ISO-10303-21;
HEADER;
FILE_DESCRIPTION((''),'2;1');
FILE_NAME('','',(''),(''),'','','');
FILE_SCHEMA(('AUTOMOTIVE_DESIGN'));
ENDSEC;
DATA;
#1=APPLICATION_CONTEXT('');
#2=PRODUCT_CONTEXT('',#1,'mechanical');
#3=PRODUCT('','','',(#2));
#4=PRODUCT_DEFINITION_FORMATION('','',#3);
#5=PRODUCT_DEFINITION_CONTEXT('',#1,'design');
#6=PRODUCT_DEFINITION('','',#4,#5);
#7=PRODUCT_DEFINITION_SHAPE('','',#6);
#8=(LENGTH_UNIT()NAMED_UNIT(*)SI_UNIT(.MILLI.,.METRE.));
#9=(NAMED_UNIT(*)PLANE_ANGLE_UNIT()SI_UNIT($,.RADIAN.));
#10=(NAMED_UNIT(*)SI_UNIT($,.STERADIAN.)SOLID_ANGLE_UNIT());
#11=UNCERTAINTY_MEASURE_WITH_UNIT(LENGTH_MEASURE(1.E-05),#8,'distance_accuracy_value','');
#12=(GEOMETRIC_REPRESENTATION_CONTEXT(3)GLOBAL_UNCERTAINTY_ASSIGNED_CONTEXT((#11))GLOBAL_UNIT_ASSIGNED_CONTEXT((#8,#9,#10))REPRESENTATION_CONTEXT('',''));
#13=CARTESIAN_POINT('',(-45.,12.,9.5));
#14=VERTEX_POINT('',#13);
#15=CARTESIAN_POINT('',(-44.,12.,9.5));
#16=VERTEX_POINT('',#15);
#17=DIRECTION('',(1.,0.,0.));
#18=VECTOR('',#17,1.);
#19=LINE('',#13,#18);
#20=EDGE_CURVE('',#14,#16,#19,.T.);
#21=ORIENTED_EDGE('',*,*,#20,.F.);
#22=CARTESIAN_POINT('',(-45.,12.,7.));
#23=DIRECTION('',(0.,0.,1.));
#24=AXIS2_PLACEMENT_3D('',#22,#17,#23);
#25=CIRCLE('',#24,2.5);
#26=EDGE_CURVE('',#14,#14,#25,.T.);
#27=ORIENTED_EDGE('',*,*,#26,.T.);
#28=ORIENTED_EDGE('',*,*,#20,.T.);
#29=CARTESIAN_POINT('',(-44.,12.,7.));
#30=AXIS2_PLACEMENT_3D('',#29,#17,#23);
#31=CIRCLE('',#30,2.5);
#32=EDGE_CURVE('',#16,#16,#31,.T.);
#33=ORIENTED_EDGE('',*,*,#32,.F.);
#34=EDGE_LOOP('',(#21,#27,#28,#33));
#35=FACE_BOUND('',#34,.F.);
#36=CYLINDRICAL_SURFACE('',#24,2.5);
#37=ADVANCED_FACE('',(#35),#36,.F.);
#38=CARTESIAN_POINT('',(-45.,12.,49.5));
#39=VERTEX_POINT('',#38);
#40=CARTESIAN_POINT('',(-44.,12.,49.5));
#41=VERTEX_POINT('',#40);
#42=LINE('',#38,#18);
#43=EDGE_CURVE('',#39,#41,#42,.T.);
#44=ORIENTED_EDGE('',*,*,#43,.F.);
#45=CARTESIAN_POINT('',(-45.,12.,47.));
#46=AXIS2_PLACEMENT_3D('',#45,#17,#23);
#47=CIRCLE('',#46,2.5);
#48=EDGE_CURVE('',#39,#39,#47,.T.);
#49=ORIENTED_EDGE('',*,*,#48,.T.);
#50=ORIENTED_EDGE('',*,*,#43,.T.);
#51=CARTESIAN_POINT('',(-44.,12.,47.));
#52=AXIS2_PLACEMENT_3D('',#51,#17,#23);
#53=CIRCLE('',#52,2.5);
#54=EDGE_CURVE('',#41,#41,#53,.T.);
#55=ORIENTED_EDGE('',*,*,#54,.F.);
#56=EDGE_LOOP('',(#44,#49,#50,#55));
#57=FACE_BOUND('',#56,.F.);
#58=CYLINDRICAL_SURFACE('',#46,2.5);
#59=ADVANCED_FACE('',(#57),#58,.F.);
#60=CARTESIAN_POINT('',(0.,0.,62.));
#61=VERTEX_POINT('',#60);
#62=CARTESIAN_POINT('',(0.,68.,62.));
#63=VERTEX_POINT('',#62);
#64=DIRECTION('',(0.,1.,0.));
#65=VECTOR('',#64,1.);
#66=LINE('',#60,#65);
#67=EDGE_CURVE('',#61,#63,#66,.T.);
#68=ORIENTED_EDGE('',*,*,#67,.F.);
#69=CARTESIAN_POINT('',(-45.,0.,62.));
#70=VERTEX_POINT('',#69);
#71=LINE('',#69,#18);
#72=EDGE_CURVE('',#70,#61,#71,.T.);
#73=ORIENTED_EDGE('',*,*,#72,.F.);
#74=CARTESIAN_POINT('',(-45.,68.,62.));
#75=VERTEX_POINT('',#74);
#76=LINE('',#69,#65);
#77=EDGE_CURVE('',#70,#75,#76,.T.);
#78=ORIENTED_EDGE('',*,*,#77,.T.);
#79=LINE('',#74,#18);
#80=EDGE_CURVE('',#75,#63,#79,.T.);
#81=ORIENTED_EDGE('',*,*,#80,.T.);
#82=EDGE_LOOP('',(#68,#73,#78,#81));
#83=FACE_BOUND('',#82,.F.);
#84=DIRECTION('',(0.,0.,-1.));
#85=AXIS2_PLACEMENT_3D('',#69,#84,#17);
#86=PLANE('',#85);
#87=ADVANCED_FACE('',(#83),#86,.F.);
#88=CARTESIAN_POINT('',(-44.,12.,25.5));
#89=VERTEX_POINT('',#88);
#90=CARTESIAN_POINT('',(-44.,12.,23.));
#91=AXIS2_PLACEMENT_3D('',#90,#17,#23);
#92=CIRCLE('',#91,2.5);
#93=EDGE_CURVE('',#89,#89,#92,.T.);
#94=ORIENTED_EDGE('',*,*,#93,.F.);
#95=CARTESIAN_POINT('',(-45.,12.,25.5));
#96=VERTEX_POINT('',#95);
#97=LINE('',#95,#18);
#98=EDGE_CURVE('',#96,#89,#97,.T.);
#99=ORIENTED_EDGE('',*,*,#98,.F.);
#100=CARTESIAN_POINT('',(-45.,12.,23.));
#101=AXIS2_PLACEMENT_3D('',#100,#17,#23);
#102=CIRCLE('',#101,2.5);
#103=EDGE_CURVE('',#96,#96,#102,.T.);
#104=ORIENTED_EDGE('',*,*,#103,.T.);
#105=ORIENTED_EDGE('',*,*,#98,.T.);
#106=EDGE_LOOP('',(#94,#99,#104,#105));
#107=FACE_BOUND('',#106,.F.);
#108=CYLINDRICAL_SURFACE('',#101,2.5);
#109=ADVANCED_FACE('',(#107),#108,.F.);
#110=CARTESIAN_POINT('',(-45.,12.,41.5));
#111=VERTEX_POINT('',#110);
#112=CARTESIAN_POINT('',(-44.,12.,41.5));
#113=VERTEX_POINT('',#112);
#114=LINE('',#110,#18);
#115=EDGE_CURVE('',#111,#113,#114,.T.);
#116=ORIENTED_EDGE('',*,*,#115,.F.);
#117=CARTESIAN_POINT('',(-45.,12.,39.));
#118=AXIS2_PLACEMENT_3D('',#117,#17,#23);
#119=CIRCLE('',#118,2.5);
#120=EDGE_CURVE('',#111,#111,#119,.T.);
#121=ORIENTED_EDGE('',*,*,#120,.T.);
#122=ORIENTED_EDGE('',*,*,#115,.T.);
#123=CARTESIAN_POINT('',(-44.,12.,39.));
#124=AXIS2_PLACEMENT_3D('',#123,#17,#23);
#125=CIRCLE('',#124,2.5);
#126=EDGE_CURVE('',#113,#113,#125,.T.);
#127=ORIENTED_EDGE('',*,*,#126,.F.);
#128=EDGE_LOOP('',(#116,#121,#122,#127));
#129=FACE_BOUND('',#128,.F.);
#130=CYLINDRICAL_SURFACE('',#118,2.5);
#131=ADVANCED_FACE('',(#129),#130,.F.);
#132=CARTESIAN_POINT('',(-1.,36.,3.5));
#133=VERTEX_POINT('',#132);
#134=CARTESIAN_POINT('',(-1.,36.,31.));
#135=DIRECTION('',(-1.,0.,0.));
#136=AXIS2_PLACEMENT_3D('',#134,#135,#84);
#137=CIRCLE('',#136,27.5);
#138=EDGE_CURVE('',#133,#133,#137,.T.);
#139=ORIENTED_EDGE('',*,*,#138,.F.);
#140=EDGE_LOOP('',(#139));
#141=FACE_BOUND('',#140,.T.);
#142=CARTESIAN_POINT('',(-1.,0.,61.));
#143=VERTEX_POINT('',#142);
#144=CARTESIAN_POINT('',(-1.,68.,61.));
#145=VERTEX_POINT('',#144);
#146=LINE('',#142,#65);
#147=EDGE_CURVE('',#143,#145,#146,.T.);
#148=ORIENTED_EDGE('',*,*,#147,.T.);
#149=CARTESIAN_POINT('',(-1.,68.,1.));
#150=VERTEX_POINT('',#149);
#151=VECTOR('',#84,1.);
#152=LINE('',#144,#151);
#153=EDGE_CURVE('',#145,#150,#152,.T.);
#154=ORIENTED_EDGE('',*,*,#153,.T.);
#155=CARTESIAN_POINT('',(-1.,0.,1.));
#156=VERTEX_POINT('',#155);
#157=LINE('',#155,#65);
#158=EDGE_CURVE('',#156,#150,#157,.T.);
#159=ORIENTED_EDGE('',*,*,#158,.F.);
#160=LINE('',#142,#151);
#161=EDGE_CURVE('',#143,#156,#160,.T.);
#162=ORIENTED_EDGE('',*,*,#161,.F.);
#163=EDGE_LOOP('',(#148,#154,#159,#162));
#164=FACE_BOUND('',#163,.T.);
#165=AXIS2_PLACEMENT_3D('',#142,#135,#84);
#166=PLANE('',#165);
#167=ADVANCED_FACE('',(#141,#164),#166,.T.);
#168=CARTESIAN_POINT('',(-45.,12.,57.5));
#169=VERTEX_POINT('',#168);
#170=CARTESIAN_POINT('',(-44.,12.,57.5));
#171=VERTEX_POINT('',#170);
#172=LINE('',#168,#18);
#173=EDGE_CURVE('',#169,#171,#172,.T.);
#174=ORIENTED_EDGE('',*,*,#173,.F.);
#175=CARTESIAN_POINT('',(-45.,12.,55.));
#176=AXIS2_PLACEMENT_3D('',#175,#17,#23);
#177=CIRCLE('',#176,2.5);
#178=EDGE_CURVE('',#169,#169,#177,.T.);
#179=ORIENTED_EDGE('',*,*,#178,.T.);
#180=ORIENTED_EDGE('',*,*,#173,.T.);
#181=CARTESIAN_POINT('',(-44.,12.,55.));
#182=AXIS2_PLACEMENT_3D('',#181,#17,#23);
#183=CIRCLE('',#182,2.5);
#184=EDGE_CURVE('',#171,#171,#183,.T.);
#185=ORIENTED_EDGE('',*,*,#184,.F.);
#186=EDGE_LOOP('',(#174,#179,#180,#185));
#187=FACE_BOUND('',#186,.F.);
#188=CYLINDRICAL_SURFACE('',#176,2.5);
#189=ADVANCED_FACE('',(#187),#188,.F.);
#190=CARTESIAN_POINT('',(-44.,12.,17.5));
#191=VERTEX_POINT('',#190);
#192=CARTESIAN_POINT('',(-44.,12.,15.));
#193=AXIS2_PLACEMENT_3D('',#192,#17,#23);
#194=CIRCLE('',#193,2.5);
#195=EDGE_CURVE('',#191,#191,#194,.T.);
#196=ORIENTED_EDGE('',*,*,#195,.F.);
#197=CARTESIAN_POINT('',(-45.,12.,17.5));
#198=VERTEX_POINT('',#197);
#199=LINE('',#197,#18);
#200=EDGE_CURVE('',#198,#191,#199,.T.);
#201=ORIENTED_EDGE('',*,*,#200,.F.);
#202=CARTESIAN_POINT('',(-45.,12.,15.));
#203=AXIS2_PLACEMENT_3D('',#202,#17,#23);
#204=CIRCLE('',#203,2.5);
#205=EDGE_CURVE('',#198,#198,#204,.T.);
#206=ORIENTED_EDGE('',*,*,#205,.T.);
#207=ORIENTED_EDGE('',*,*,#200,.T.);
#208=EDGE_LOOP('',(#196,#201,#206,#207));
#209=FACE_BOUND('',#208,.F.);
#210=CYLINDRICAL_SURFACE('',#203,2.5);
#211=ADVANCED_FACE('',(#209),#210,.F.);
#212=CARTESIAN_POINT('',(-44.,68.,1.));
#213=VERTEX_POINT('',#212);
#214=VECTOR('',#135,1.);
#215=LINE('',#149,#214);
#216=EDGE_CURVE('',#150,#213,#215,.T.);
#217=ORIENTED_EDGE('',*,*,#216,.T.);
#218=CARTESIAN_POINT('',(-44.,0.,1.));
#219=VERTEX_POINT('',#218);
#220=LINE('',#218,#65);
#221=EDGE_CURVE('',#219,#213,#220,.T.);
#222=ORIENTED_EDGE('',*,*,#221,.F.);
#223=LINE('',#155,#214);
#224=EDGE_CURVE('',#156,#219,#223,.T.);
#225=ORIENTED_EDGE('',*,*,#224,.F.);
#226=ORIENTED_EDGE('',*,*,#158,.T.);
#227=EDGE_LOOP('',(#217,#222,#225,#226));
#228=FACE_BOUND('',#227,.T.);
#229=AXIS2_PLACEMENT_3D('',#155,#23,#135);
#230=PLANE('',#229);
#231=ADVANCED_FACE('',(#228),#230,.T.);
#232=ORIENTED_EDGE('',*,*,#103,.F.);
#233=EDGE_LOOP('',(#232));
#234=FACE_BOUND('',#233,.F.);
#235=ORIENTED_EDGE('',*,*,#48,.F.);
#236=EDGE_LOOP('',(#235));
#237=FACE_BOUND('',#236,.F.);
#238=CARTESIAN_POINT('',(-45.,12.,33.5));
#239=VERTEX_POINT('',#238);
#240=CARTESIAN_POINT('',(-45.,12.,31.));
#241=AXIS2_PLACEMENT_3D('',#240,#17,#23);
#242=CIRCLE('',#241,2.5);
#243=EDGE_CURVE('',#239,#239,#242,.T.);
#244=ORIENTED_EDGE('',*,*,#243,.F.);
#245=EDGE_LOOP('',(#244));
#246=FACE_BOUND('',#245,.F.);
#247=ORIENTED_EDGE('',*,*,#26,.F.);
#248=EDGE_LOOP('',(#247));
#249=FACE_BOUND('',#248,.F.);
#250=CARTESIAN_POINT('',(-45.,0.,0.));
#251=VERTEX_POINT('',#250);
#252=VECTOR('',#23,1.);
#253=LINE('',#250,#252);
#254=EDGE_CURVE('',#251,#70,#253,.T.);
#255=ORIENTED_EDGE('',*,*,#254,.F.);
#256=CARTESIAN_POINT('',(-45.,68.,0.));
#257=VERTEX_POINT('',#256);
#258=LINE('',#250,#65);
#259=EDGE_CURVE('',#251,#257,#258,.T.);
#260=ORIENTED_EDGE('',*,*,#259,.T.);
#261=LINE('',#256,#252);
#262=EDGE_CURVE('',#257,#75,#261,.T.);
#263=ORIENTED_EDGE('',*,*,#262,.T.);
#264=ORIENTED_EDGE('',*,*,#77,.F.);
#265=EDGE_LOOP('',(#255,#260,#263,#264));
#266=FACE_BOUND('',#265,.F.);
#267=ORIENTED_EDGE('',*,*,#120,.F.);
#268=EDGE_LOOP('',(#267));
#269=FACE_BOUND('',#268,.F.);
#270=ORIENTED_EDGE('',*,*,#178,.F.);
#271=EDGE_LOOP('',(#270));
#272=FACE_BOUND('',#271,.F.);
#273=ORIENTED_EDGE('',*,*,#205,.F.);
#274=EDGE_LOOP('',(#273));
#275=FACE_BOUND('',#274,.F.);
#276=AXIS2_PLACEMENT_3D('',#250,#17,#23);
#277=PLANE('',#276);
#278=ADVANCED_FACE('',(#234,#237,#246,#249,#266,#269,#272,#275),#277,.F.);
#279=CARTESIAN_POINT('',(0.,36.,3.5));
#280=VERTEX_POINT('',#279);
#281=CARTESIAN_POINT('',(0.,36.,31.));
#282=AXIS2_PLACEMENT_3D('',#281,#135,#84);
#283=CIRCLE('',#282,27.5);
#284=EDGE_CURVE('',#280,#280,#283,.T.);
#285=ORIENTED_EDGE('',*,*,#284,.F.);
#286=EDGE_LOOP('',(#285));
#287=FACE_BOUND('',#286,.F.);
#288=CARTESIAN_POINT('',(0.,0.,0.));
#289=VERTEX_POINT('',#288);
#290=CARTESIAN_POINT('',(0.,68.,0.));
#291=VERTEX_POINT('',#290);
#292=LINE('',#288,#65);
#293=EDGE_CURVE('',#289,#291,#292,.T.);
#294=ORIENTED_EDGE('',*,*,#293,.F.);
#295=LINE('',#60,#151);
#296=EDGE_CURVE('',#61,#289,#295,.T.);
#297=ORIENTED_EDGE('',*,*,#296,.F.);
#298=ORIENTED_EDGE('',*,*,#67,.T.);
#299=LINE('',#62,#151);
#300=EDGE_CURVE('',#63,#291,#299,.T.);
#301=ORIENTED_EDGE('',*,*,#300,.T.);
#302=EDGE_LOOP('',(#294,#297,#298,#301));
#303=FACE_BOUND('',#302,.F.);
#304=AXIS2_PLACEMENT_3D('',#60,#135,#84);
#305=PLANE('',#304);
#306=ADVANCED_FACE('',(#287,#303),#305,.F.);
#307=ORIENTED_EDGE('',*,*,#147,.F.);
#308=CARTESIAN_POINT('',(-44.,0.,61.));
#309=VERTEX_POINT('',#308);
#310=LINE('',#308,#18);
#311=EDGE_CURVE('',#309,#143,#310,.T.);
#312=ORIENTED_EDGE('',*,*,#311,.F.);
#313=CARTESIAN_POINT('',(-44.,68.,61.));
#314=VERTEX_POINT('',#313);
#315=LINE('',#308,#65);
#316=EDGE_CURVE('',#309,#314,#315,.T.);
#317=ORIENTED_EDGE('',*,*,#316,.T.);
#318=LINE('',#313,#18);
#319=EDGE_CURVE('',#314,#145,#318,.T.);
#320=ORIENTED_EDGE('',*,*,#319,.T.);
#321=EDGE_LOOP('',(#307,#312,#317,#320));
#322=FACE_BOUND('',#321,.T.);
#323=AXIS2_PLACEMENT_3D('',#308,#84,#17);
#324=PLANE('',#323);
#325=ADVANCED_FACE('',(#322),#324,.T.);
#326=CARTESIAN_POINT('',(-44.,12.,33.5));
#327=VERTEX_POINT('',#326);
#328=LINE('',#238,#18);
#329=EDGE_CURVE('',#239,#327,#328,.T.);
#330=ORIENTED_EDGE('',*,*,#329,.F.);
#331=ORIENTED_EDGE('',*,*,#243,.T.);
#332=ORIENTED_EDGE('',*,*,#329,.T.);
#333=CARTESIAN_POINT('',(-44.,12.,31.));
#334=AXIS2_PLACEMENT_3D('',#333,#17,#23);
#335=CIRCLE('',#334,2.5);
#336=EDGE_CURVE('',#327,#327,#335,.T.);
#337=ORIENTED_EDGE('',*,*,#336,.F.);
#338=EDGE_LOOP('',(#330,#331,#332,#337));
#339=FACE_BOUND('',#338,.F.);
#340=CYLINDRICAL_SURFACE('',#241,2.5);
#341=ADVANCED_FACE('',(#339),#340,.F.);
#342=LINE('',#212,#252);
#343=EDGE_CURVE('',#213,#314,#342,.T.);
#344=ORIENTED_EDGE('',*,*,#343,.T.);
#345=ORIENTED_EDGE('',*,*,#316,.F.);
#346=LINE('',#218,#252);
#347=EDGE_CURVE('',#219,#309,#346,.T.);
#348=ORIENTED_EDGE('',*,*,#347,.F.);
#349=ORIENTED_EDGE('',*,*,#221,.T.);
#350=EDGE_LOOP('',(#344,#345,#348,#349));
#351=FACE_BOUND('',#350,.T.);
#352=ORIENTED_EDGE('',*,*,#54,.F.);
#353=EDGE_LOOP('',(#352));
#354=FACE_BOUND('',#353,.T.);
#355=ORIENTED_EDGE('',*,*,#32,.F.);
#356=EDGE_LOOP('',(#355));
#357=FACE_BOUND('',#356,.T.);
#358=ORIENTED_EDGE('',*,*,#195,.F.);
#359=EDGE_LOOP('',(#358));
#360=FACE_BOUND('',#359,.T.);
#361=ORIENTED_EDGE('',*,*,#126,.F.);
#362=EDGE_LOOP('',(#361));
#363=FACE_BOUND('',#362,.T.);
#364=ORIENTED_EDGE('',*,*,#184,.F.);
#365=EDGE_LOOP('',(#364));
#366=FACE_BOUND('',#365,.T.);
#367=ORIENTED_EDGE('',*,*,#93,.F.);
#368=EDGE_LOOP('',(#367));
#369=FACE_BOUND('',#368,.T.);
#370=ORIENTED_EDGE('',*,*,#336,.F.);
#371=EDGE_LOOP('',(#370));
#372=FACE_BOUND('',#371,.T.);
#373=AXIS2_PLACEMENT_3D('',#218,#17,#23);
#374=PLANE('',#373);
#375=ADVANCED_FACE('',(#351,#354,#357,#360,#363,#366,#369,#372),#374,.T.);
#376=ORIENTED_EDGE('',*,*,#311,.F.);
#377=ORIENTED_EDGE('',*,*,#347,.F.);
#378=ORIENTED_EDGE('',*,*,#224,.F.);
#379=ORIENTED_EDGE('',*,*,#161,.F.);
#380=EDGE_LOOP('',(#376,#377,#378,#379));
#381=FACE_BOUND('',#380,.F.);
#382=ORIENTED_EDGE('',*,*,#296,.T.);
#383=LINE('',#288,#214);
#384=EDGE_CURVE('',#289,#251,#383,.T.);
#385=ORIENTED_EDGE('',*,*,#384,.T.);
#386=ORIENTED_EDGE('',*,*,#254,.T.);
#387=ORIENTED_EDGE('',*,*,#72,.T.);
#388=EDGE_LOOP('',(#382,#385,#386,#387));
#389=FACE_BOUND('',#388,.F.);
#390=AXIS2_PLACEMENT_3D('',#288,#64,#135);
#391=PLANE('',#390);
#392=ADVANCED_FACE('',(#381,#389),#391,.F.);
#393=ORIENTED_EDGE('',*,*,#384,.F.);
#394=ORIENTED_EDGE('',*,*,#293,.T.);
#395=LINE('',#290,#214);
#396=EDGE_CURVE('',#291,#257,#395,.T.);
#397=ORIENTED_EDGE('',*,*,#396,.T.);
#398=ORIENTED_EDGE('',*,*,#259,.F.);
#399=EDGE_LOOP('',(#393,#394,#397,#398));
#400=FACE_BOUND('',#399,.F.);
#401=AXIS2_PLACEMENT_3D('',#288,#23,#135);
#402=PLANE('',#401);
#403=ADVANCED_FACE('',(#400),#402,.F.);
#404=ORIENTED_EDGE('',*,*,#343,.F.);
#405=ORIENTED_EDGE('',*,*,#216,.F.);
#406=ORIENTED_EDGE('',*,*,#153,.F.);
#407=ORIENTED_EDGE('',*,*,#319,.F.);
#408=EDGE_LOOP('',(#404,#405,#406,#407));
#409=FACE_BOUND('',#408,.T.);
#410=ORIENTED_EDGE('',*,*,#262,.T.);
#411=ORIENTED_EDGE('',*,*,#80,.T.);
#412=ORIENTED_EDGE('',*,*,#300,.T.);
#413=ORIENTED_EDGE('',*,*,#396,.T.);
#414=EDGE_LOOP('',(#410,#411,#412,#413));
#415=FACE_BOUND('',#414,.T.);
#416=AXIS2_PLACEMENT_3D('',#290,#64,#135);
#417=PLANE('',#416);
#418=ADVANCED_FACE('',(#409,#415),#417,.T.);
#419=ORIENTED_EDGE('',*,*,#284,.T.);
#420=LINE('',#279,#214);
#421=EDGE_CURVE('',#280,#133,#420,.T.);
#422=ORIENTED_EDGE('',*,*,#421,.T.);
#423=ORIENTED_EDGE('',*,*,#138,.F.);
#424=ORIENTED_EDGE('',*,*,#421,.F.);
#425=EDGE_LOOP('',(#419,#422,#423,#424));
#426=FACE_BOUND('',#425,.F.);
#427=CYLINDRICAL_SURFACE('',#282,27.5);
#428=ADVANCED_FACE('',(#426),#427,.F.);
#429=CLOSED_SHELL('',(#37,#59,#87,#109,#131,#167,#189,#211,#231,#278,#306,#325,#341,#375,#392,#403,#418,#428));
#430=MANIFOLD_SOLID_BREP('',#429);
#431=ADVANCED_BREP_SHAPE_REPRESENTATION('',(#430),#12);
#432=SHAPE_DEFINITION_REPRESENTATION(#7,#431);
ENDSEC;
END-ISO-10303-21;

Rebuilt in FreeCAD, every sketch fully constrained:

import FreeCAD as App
import Part
import Sketcher
from FreeCAD import Vector

doc = App.newDocument("Part")
body = doc.addObject("PartDesign::Body", "Body")

sketch1 = doc.addObject("Sketcher::SketchObject", "Sketch")
body.addObject(sketch1)
sketch1.AttachmentSupport = (doc.XZ_Plane, [""])
sketch1.MapMode = "FlatFace"
sketch1.addGeometry([
    Part.LineSegment(Vector(0, 62, 0), Vector(0, 0, 0)),
    Part.LineSegment(Vector(0, 0, 0), Vector(-45, 0, 0)),
    Part.LineSegment(Vector(-45, 0, 0), Vector(-45, 62, 0)),
    Part.LineSegment(Vector(-45, 62, 0), Vector(0, 62, 0)),
    Part.LineSegment(Vector(-1, 61, 0), Vector(-44, 61, 0)),
    Part.LineSegment(Vector(-44, 61, 0), Vector(-44, 1, 0)),
    Part.LineSegment(Vector(-44, 1, 0), Vector(-1, 1, 0)),
    Part.LineSegment(Vector(-1, 1, 0), Vector(-1, 61, 0)),
], False)
sketch1.addConstraint([
    Sketcher.Constraint("Coincident", 0, 2, 1, 1),
    Sketcher.Constraint("Coincident", 1, 2, 2, 1),
    Sketcher.Constraint("Coincident", 2, 2, 3, 1),
    Sketcher.Constraint("Coincident", 3, 2, 0, 1),
    Sketcher.Constraint("Coincident", 4, 2, 5, 1),
    Sketcher.Constraint("Coincident", 5, 2, 6, 1),
    Sketcher.Constraint("Coincident", 6, 2, 7, 1),
    Sketcher.Constraint("Coincident", 7, 2, 4, 1),
    Sketcher.Constraint("Vertical", 0),
    Sketcher.Constraint("Horizontal", 1),
    Sketcher.Constraint("Vertical", 2),
    Sketcher.Constraint("Horizontal", 3),
    Sketcher.Constraint("Horizontal", 4),
    Sketcher.Constraint("Vertical", 5),
    Sketcher.Constraint("Horizontal", 6),
    Sketcher.Constraint("Vertical", 7),
    Sketcher.Constraint("Coincident", 0, 2, -1, 1),
    Sketcher.Constraint("DistanceX", 4, 2, 4, 1, 43.0),
    Sketcher.Constraint("DistanceY", 5, 2, 5, 1, 60.0),
    Sketcher.Constraint("DistanceY", -1, 1, 5, 2, 1.0),
    Sketcher.Constraint("DistanceX", 6, 2, -1, 1, 1.0),
    Sketcher.Constraint("DistanceX", 2, 2, 4, 2, 1.0),
    Sketcher.Constraint("DistanceY", 4, 2, 2, 2, 1.0),
])
pad1 = doc.addObject("PartDesign::Pad", "Pad")
body.addObject(pad1)
pad1.Profile = sketch1
pad1.Length = 68
pad1.Reversed = True

sketch2 = doc.addObject("Sketcher::SketchObject", "Sketch001")
body.addObject(sketch2)
sketch2.AttachmentSupport = (doc.YZ_Plane, [""])
sketch2.MapMode = "FlatFace"
sketch2.addGeometry(Part.Circle(Vector(36, 31, 0), Vector(0, 0, 1), 28), False)
sketch2.addConstraint([
    Sketcher.Constraint("Diameter", 0, 55.0),
    Sketcher.Constraint("DistanceX", -1, 1, 0, 3, 36.0),
    Sketcher.Constraint("DistanceY", -1, 1, 0, 3, 31.0),
])
doc.recompute()
hole = doc.addObject("PartDesign::Hole", "Hole")
body.addObject(hole)
hole.Profile = sketch2
hole.ThreadType = "None"
hole.Diameter = 55
hole.DepthType = "Dimension"
hole.Depth = 1
hole.DrillPoint = "Flat"

sketch3 = doc.addObject("Sketcher::SketchObject", "Sketch002")
body.addObject(sketch3)
sketch3.AttachmentSupport = (doc.YZ_Plane, [""])
sketch3.MapMode = "FlatFace"
sketch3.AttachmentOffset = App.Placement(Vector(0, 0, -45), App.Rotation())
sketch3.addGeometry([
    Part.Circle(Vector(12, 7, 0), Vector(0, 0, 1), 2.5),
    Part.Circle(Vector(12, 15, 0), Vector(0, 0, 1), 2.5),
    Part.Circle(Vector(12, 23, 0), Vector(0, 0, 1), 2.5),
    Part.Circle(Vector(12, 31, 0), Vector(0, 0, 1), 2.5),
    Part.Circle(Vector(12, 39, 0), Vector(0, 0, 1), 2.5),
    Part.Circle(Vector(12, 47, 0), Vector(0, 0, 1), 2.5),
    Part.Circle(Vector(12, 55, 0), Vector(0, 0, 1), 2.5),
], False)
sketch3.addConstraint([
    Sketcher.Constraint("Equal", 0, 1),
    Sketcher.Constraint("Equal", 1, 2),
    Sketcher.Constraint("Equal", 2, 3),
    Sketcher.Constraint("Equal", 3, 4),
    Sketcher.Constraint("Equal", 4, 5),
    Sketcher.Constraint("Equal", 5, 6),
    Sketcher.Constraint("Vertical", 0, 3, 1, 3),
    Sketcher.Constraint("Vertical", 1, 3, 2, 3),
    Sketcher.Constraint("Vertical", 2, 3, 3, 3),
    Sketcher.Constraint("Vertical", 3, 3, 4, 3),
    Sketcher.Constraint("Vertical", 4, 3, 5, 3),
    Sketcher.Constraint("Vertical", 5, 3, 6, 3),
    Sketcher.Constraint("Diameter", 0, 5.0),
    Sketcher.Constraint("DistanceX", -1, 1, 0, 3, 12.0),
    Sketcher.Constraint("DistanceY", -1, 1, 0, 3, 7.0),
    Sketcher.Constraint("DistanceY", -1, 1, 1, 3, 15.0),
    Sketcher.Constraint("DistanceY", -1, 1, 2, 3, 23.0),
    Sketcher.Constraint("DistanceY", -1, 1, 3, 3, 31.0),
    Sketcher.Constraint("DistanceY", -1, 1, 4, 3, 39.0),
    Sketcher.Constraint("DistanceY", -1, 1, 5, 3, 47.0),
    Sketcher.Constraint("DistanceY", -1, 1, 6, 3, 55.0),
])
doc.recompute()
hole2 = doc.addObject("PartDesign::Hole", "Hole001")
body.addObject(hole2)
hole2.Profile = sketch3
hole2.ThreadType = "None"
hole2.Diameter = 5
hole2.DepthType = "Dimension"
hole2.Depth = 1
hole2.DrillPoint = "Flat"
hole2.Reversed = True

doc.recompute()
